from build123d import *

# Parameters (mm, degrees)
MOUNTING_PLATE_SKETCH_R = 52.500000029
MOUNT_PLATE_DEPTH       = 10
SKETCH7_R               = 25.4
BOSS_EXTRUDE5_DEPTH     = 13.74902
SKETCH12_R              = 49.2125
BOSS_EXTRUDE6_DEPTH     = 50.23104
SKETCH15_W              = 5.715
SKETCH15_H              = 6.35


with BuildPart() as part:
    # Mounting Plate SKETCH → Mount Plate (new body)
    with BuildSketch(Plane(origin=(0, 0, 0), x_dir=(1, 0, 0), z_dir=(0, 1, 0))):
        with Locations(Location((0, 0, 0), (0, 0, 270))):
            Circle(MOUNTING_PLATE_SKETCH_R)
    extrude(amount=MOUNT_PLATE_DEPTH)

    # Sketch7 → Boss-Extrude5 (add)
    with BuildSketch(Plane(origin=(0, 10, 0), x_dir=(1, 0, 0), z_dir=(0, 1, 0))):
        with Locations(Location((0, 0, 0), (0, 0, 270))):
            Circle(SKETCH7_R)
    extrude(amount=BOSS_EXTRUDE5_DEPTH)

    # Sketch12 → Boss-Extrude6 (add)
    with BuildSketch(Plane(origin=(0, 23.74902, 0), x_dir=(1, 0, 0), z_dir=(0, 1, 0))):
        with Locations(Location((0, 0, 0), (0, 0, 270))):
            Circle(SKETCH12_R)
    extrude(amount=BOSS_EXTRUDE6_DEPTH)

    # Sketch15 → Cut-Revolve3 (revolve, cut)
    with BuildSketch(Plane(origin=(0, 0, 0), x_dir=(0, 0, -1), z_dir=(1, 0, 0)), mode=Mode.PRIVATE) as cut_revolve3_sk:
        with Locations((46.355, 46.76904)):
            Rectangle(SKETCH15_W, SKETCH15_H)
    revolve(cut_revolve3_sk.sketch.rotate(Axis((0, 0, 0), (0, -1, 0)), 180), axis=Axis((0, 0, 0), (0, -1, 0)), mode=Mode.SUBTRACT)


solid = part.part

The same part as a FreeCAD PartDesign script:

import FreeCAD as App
import Part
import Sketcher
from FreeCAD import Vector
Q = App.Units.Quantity


def add_polygon(sketch, points):
    """Adds a closed chain of lines whose ends are joined by coincident constraints."""
    first, n = sketch.GeometryCount, len(points)
    for a, b in zip(points, points[1:] + points[:1]):
        sketch.addGeometry(Part.LineSegment(App.Vector(*a, 0), App.Vector(*b, 0)), False)
    for i in range(n):
        sketch.addConstraint(Sketcher.Constraint("Coincident", first + i, 2, first + (i + 1) % n, 1))

doc = App.newDocument("Part")
body = doc.addObject("PartDesign::Body", "Body")

# Sketch on XZ plane
sketch1 = body.newObject("Sketcher::SketchObject", "Sketch")
sketch1.AttachmentSupport = (doc.getObject("XZ_Plane"), [""])
sketch1.MapMode = "FlatFace"
sketch1.addGeometry(Part.Circle(Vector(0, 0, 0), Vector(0, 0, 1), 53), False)
sketch1.addConstraint(Sketcher.Constraint("Coincident", 0, 3, -1, 1))
sketch1.addConstraint(Sketcher.Constraint("Diameter", 0, 105.0))
pad1 = body.newObject("PartDesign::Pad", "Pad")
pad1.Profile = sketch1
pad1.Length = 10
pad1.Reversed = True

# Sketch on XZ plane
sketch2 = body.newObject("Sketcher::SketchObject", "Sketch001")
sketch2.AttachmentSupport = (doc.getObject("XZ_Plane"), [""])
sketch2.MapMode = "FlatFace"
sketch2.AttachmentOffset = App.Placement(Vector(0, 0, -10), App.Rotation())
sketch2.addGeometry(Part.Circle(Vector(0, 0, 0), Vector(0, 0, 1), 25), False)
sketch2.addConstraint(Sketcher.Constraint("Coincident", 0, 3, -1, 1))
sketch2.addConstraint(Sketcher.Constraint("Diameter", 0, Q("2 in")))
pad2 = body.newObject("PartDesign::Pad", "Pad001")
pad2.Profile = sketch2
pad2.Length = Q("0.5413 in")
pad2.Reversed = True

# Sketch on XZ plane
sketch3 = body.newObject("Sketcher::SketchObject", "Sketch002")
sketch3.AttachmentSupport = (doc.getObject("XZ_Plane"), [""])
sketch3.MapMode = "FlatFace"
sketch3.AttachmentOffset = App.Placement(Vector(0, 0, -23.74902), App.Rotation())
sketch3.addGeometry(Part.Circle(Vector(0, 0, 0), Vector(0, 0, 1), 49), False)
sketch3.addConstraint(Sketcher.Constraint("Coincident", 0, 3, -1, 1))
sketch3.addConstraint(Sketcher.Constraint("Diameter", 0, Q("3.875 in")))
pad3 = body.newObject("PartDesign::Pad", "Pad002")
pad3.Profile = sketch3
pad3.Length = Q("1.9776 in")
pad3.Reversed = True

# Sketch on YZ plane
sketch4 = body.newObject("Sketcher::SketchObject", "Sketch003")
sketch4.AttachmentSupport = (doc.getObject("YZ_Plane"), [""])
sketch4.MapMode = "FlatFace"
add_polygon(sketch4, [(50, -43), (44, -43), (44, -49), (50, -49)])  # lines 0-3
sketch4.addConstraint(Sketcher.Constraint("Horizontal", 0))
sketch4.addConstraint(Sketcher.Constraint("Vertical", 1))
sketch4.addConstraint(Sketcher.Constraint("Horizontal", 2))
sketch4.addConstraint(Sketcher.Constraint("Vertical", 3))
sketch4.addConstraint(Sketcher.Constraint("DistanceX", 0, 2, 0, 1, Q("0.25 in")))
sketch4.addConstraint(Sketcher.Constraint("DistanceY", 1, 2, 1, 1, Q("0.225 in")))
sketch4.addConstraint(Sketcher.Constraint("DistanceY", 1, 2, -1, 1, Q("1.9375 in")))
sketch4.addConstraint(Sketcher.Constraint("DistanceX", -1, 1, 0, 2, 43.59404))
groove = body.newObject("PartDesign::Groove", "Groove")
groove.Profile = sketch4
groove.ReferenceAxis = (sketch4, ["H_Axis"])
groove.Angle = 360

doc.recompute()
